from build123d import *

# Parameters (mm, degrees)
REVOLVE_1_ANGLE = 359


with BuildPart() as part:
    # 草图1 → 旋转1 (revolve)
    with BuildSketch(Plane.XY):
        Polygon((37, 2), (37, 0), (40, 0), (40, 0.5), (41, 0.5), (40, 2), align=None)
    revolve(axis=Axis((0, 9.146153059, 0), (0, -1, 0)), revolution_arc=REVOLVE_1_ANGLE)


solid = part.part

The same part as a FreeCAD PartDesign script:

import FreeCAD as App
import Part
import Sketcher
Q = App.Units.Quantity


def add_polygon(sketch, points):
    """Adds a closed chain of lines whose ends are joined by coincident constraints."""
    first, n = sketch.GeometryCount, len(points)
    for a, b in zip(points, points[1:] + points[:1]):
        sketch.addGeometry(Part.LineSegment(App.Vector(*a, 0), App.Vector(*b, 0)), False)
    for i in range(n):
        sketch.addConstraint(Sketcher.Constraint("Coincident", first + i, 2, first + (i + 1) % n, 1))

doc = App.newDocument("Part")
body = doc.addObject("PartDesign::Body", "Body")

# Sketch on XY plane
sketch1 = doc.addObject("Sketcher::SketchObject", "Sketch")
body.addObject(sketch1)
sketch1.AttachmentSupport = (doc.XY_Plane, [""])
sketch1.MapMode = "FlatFace"
add_polygon(sketch1, [(37, 2), (37, 0), (40, 0), (40, 0.5), (41, 0.5), (40, 2)])  # lines 0-5
sketch1.addConstraint(Sketcher.Constraint("Vertical", 0))
sketch1.addConstraint(Sketcher.Constraint("Horizontal", 1))
sketch1.addConstraint(Sketcher.Constraint("Vertical", 2))
sketch1.addConstraint(Sketcher.Constraint("Horizontal", 3))
sketch1.addConstraint(Sketcher.Constraint("Horizontal", 5))
sketch1.addConstraint(Sketcher.Constraint("PointOnObject", 0, 2, -1))
sketch1.addConstraint(Sketcher.Constraint("Vertical", 2, 2, 4, 2))
sketch1.addConstraint(Sketcher.Constraint("DistanceX", 1, 1, 1, 2, Q("3 mm")))
sketch1.addConstraint(Sketcher.Constraint("DistanceX", 3, 1, 3, 2, Q("1 mm")))
sketch1.addConstraint(Sketcher.Constraint("DistanceY", 0, 2, 0, 1, Q("2 mm")))
sketch1.addConstraint(Sketcher.Constraint("DistanceY", 2, 1, 2, 2, Q("0.5 mm")))
sketch1.addConstraint(Sketcher.Constraint("DistanceX", -1, 1, 0, 2, Q("37 mm")))
revolution = doc.addObject("PartDesign::Revolution", "Revolution")
body.addObject(revolution)
revolution.Profile = sketch1
revolution.ReferenceAxis = (sketch1, ["V_Axis"])
revolution.Angle = 359
revolution.Reversed = True

doc.recompute()
